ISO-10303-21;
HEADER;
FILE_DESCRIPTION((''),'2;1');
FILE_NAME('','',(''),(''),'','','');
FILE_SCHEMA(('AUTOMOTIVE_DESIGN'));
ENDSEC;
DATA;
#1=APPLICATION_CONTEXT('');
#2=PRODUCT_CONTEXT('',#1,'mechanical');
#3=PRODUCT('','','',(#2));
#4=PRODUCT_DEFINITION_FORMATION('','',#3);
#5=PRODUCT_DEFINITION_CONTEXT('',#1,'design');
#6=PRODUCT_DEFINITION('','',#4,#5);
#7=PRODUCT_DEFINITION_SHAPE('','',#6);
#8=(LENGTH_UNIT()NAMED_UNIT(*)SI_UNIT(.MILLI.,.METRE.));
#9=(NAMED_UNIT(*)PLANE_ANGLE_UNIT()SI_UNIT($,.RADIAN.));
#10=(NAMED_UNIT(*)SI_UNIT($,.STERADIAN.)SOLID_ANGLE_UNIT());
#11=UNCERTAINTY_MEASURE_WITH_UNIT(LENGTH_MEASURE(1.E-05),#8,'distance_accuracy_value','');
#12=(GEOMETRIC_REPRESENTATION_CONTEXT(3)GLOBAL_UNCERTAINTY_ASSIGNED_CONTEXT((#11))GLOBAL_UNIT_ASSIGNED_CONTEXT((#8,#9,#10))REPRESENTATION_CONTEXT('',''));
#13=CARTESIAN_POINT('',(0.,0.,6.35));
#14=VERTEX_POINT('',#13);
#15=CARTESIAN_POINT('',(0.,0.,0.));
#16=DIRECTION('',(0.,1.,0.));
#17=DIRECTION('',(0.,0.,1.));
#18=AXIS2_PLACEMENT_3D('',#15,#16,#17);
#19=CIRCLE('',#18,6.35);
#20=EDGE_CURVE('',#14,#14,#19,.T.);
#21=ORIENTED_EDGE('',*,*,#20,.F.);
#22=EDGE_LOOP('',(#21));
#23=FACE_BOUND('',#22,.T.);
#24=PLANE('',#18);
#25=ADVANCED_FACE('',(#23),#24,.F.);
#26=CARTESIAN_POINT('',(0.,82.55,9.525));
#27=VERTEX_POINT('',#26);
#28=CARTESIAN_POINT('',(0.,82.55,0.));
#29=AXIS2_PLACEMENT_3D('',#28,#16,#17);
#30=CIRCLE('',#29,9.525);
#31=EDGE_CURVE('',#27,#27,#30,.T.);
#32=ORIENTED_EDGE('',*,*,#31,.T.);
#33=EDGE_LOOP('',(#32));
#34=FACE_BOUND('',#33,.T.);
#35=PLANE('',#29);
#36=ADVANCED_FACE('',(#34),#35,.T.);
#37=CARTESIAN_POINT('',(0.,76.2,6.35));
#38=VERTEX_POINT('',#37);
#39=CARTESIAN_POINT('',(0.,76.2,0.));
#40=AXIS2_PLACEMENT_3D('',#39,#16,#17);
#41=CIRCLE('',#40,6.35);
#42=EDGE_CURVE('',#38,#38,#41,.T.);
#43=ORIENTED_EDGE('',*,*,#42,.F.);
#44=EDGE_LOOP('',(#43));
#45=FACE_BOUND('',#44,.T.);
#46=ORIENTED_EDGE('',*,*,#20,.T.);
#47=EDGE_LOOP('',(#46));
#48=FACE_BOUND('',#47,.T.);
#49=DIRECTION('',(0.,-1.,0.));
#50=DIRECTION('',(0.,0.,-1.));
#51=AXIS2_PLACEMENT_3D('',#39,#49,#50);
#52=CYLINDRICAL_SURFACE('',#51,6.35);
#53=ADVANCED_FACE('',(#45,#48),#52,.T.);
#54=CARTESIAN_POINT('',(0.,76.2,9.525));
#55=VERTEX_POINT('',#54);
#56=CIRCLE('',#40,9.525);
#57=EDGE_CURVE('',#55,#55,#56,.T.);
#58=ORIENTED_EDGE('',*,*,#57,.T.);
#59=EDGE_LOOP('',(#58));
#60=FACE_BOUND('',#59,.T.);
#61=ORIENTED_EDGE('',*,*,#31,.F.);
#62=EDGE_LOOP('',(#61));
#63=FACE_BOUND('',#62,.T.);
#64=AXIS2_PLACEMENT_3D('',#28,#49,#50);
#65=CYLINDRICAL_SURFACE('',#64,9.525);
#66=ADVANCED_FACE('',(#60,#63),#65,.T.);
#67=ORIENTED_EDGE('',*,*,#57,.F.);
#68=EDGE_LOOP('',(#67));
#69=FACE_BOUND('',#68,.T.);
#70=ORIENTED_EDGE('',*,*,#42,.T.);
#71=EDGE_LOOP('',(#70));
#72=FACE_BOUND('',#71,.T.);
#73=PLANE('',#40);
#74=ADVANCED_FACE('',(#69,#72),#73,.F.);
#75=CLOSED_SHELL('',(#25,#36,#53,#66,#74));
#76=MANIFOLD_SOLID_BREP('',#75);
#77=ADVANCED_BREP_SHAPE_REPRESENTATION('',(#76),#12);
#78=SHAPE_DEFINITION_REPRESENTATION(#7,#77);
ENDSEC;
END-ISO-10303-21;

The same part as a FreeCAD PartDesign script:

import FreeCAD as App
import Part
import Sketcher
Q = App.Units.Quantity

doc = App.newDocument("Part")
params = doc.addObject("Spreadsheet::Sheet", "Params")
for row, (alias, value) in enumerate([
    ("sketch1_diameter", "0.5 in"),
    ("pad1_length", "3 in"),
    ("sketch2_diameter", "0.75 in"),
    ("pad2_length", "0.25 in"),
], start=1):
    params.set(f"A{row}", alias)
    params.set(f"B{row}", "=" + value)
    params.setAlias(f"B{row}", alias)

body = doc.addObject("PartDesign::Body", "Body")

# Sketch on XZ plane
sketch1 = doc.addObject("Sketcher::SketchObject", "Sketch")
body.addObject(sketch1)
sketch1.AttachmentSupport = (doc.XZ_Plane, [""])
sketch1.MapMode = "FlatFace"
sketch1.addGeometry(Part.Circle(App.Vector(0, 0, 0), App.Vector(0, 0, 1), 6), False)
sketch1.addConstraint(Sketcher.Constraint("Coincident", 0, 3, -1, 1))
sketch1.addConstraint(Sketcher.Constraint("Diameter", 0, Q("0.5 in")))
sketch1.setExpression("Constraints[1]", "Params.sketch1_diameter")
pad1 = doc.addObject("PartDesign::Pad", "Pad")
body.addObject(pad1)
pad1.Profile = sketch1
pad1.setExpression("Length", "Params.pad1_length")
pad1.Reversed = True

# Sketch on XZ plane
sketch2 = doc.addObject("Sketcher::SketchObject", "Sketch001")
body.addObject(sketch2)
sketch2.AttachmentSupport = (doc.XZ_Plane, [""])
sketch2.MapMode = "FlatFace"
sketch2.AttachmentOffset = App.Placement(App.Vector(0, 0, -3 * 25.4), App.Rotation())
sketch2.addGeometry(Part.Circle(App.Vector(0, 0, 0), App.Vector(0, 0, 1), 10), False)
sketch2.addConstraint(Sketcher.Constraint("Coincident", 0, 3, -1, 1))
sketch2.addConstraint(Sketcher.Constraint("Diameter", 0, Q("0.75 in")))
sketch2.setExpression("Constraints[1]", "Params.sketch2_diameter")
pad2 = doc.addObject("PartDesign::Pad", "Pad001")
body.addObject(pad2)
pad2.Profile = sketch2
pad2.setExpression("Length", "Params.pad2_length")
pad2.Reversed = True

doc.recompute()
